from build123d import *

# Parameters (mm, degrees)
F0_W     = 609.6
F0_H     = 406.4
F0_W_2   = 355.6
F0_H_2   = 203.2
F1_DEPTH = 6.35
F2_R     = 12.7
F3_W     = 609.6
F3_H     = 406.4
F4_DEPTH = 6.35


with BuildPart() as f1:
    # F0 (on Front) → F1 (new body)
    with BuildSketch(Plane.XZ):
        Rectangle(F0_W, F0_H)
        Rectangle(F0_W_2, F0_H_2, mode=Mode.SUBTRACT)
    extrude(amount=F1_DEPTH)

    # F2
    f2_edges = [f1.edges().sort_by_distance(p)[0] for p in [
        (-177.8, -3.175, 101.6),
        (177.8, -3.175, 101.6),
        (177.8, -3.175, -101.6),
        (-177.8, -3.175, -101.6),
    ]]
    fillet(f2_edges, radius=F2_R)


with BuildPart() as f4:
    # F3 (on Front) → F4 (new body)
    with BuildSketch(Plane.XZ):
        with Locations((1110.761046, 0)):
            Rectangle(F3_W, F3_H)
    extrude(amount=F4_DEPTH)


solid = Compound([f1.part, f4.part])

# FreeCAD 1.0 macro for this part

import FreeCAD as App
import Part
import Sketcher
Q = App.Units.Quantity


def edges_at(feature, points):
    """Names of the edges that pass closest to the given points."""
    edges = feature.Shape.Edges
    near = lambda p: min(range(len(edges)), key=lambda i: edges[i].distToShape(Part.Vertex(*p))[0])
    return sorted({f"Edge{near(p) + 1}" for p in points})


def add_polygon(sketch, points):
    """Adds a closed chain of lines whose ends are joined by coincident constraints."""
    first, n = sketch.GeometryCount, len(points)
    for a, b in zip(points, points[1:] + points[:1]):
        sketch.addGeometry(Part.LineSegment(App.Vector(*a, 0), App.Vector(*b, 0)), False)
    for i in range(n):
        sketch.addConstraint(Sketcher.Constraint("Coincident", first + i, 2, first + (i + 1) % n, 1))

doc = App.newDocument("Part")
body = doc.addObject("PartDesign::Body", "Body")

sketch1 = body.newObject("Sketcher::SketchObject", "Sketch")
sketch1.AttachmentSupport = (doc.getObject("XZ_Plane"), [""])
sketch1.MapMode = "FlatFace"
add_polygon(sketch1, [(-305, 203), (-305, -203), (305, -203), (305, 203)])
add_polygon(sketch1, [(178, -102), (-178, -102), (-178, 102), (178, 102)])
sketch1.addConstraint([
    Sketcher.Constraint("Vertical", 0),
    Sketcher.Constraint("Horizontal", 1),
    Sketcher.Constraint("Vertical", 2),
    Sketcher.Constraint("Horizontal", 3),
    Sketcher.Constraint("Horizontal", 4),
    Sketcher.Constraint("Vertical", 5),
    Sketcher.Constraint("Horizontal", 6),
    Sketcher.Constraint("Vertical", 7),
    Sketcher.Constraint("Symmetric", 0, 2, 2, 2, -1, 1),
    Sketcher.Constraint("Symmetric", 4, 2, 6, 2, -1, 1),
    Sketcher.Constraint("DistanceX", 1, 1, 1, 2, Q("24 in")),
    Sketcher.Constraint("DistanceX", 4, 2, 4, 1, Q("14 in")),
    Sketcher.Constraint("DistanceY", 0, 2, 0, 1, Q("16 in")),
    Sketcher.Constraint("DistanceY", 5, 1, 5, 2, Q("8 in")),
])
pad1 = body.newObject("PartDesign::Pad", "Pad")
pad1.Profile = sketch1
pad1.Length = Q("0.25 in")
doc.recompute()

fillet = body.newObject("PartDesign::Fillet", "Fillet")
fillet.Base = (pad1, edges_at(pad1, [
    (-177.8, -3.175, 101.6),
    (177.8, -3.175, 101.6),
    (177.8, -3.175, -101.6),
    (-177.8, -3.175, -101.6),
]))
fillet.Radius = Q("0.5 in")
body2 = doc.addObject("PartDesign::Body", "Body001")

sketch2 = body2.newObject("Sketcher::SketchObject", "Sketch001")
sketch2.AttachmentSupport = (doc.getObject("XZ_Plane001"), [""])
sketch2.MapMode = "FlatFace"
add_polygon(sketch2, [(806, 203), (806, -203), (1416, -203), (1416, 203)])
sketch2.addConstraint([
    Sketcher.Constraint("Vertical", 0),
    Sketcher.Constraint("Horizontal", 1),
    Sketcher.Constraint("Vertical", 2),
    Sketcher.Constraint("Horizontal", 3),
    Sketcher.Constraint("DistanceX", 1, 1, 1, 2, Q("24 in")),
    Sketcher.Constraint("DistanceY", 0, 2, 0, 1, Q("16 in")),
    Sketcher.Constraint("DistanceY", 0, 2, -1, 1, Q("8 in")),
    Sketcher.Constraint("DistanceX", -1, 1, 0, 2, 805.961046),
])
pad2 = body2.newObject("PartDesign::Pad", "Pad001")
pad2.Profile = sketch2
pad2.Length = Q("0.25 in")

doc.recompute()
